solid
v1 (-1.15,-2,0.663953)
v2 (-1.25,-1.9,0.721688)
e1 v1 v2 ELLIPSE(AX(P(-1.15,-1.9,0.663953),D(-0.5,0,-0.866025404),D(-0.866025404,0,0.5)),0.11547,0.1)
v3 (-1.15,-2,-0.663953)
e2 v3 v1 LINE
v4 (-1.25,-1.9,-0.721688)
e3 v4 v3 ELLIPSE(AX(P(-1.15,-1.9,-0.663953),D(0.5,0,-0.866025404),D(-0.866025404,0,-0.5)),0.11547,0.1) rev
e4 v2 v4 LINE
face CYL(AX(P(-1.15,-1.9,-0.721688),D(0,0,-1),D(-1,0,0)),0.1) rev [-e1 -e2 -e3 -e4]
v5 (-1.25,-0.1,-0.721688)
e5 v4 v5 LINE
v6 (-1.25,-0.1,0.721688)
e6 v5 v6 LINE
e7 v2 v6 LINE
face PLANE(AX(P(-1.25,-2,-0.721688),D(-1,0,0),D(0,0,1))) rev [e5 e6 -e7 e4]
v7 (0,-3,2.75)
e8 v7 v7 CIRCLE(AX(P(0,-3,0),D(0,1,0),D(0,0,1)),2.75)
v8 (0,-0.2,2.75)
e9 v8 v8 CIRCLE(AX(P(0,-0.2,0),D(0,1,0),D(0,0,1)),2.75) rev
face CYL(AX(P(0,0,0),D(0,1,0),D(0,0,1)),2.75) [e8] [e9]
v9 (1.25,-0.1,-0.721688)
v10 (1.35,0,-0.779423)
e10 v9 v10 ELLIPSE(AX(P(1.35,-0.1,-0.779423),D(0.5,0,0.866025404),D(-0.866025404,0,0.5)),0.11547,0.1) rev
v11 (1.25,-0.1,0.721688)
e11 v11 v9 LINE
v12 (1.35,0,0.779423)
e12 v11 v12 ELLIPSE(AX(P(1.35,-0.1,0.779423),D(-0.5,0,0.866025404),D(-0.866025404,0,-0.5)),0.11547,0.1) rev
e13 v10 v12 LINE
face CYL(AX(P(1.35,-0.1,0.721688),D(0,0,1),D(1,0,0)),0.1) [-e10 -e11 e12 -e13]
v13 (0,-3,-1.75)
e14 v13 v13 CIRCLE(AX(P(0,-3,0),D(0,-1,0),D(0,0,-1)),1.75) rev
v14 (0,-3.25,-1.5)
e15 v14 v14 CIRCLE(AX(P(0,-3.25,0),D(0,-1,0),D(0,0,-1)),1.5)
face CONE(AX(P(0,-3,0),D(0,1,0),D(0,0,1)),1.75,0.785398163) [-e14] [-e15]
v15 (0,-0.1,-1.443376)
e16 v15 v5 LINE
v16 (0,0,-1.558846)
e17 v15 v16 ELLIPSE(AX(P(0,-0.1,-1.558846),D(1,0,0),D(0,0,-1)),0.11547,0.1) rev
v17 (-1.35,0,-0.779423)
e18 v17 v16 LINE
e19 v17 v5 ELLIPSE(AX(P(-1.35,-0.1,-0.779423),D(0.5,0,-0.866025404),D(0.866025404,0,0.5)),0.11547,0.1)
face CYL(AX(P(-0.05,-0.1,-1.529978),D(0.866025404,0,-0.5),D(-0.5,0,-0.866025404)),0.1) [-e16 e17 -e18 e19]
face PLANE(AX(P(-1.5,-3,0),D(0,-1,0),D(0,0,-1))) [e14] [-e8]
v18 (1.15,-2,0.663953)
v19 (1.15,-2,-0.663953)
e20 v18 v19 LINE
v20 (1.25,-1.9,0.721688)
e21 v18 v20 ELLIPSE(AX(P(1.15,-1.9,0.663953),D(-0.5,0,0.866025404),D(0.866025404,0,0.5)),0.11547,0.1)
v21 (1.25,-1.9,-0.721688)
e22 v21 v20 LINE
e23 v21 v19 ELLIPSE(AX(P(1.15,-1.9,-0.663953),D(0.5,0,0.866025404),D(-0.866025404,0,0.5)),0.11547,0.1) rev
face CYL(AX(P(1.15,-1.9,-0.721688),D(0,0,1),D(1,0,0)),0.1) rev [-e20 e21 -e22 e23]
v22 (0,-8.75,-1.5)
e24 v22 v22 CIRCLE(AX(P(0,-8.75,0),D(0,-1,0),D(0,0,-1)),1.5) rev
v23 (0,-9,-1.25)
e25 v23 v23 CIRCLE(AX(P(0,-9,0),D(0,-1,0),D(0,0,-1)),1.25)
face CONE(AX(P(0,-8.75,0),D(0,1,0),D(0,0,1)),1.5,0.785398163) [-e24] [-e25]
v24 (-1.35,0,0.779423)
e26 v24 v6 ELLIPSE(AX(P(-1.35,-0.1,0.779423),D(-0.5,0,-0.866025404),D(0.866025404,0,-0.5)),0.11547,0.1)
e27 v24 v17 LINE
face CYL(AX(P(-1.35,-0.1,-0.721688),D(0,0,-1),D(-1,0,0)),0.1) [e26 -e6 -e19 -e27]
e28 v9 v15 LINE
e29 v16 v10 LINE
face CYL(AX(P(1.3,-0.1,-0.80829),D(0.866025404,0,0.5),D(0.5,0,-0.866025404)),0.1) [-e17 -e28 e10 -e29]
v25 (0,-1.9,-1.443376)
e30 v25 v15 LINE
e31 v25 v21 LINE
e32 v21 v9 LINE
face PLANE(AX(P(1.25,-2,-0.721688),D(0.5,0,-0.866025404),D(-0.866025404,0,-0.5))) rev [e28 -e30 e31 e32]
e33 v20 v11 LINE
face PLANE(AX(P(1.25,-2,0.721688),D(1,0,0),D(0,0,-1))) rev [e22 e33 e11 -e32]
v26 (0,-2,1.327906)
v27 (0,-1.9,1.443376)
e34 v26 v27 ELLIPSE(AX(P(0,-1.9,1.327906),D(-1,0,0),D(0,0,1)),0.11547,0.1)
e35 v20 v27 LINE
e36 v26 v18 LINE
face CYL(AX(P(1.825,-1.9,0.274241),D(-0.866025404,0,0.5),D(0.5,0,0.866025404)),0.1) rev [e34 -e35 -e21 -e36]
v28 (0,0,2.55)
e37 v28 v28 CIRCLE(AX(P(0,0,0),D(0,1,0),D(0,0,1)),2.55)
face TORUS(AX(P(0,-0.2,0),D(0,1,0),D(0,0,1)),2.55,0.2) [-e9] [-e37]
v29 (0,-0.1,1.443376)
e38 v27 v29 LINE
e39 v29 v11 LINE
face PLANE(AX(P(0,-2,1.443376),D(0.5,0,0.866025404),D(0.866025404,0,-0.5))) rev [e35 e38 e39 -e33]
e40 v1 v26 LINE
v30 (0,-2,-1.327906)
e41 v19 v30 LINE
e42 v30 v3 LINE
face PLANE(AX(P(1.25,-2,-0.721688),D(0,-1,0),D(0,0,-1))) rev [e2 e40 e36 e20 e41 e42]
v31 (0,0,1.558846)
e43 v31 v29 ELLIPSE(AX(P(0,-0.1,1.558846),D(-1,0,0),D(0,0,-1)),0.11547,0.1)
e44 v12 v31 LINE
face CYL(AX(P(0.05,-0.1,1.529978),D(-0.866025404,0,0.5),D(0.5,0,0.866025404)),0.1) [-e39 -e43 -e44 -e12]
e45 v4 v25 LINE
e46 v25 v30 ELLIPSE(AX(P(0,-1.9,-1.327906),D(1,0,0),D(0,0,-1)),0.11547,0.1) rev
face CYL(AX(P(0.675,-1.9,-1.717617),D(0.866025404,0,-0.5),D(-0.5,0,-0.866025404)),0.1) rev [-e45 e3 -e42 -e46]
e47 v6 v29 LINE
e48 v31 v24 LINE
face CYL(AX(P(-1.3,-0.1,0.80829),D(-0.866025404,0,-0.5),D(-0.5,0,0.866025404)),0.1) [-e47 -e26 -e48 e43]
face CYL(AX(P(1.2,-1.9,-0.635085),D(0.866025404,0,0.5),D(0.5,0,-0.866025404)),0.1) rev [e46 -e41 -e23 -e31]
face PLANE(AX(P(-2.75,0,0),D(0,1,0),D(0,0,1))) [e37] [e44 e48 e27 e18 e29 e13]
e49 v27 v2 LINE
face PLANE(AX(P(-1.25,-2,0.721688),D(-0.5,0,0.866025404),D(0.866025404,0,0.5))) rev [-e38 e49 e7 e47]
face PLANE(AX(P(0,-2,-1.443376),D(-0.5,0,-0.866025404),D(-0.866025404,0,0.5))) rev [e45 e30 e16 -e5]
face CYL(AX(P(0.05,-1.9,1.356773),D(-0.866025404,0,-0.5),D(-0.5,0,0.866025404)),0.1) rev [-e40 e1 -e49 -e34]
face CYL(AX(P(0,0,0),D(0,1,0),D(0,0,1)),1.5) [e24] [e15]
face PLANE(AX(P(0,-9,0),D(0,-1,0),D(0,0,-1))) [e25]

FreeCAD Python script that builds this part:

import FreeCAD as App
import Part
import Sketcher
from FreeCAD import Vector
Q = App.Units.Quantity


def edges_at(feature, points):
    """Names of the edges that pass closest to the given points."""
    edges = feature.Shape.Edges
    near = lambda p: min(range(len(edges)), key=lambda i: edges[i].distToShape(Part.Vertex(*p))[0])
    return sorted({f"Edge{near(p) + 1}" for p in points})


def add_polygon(sketch, points):
    """Adds a closed chain of lines whose ends are joined by coincident constraints."""
    first, n = sketch.GeometryCount, len(points)
    for a, b in zip(points, points[1:] + points[:1]):
        sketch.addGeometry(Part.LineSegment(App.Vector(*a, 0), App.Vector(*b, 0)), False)
    for i in range(n):
        sketch.addConstraint(Sketcher.Constraint("Coincident", first + i, 2, first + (i + 1) % n, 1))

doc = App.newDocument("Part")
body = doc.addObject("PartDesign::Body", "Body")

# Sketch on XY plane
sketch1 = body.newObject("Sketcher::SketchObject", "Sketch")
sketch1.AttachmentSupport = (doc.getObject("XY_Plane"), [""])
sketch1.MapMode = "FlatFace"
add_polygon(sketch1, [(-1.5, -9), (0, -9), (0, 0), (-2.8, 0), (-2.8, -3), (-1.5, -3)])  # lines 0-5
sketch1.addConstraint([
    Sketcher.Constraint("Horizontal", 0),
    Sketcher.Constraint("Vertical", 1),
    Sketcher.Constraint("Horizontal", 2),
    Sketcher.Constraint("Vertical", 3),
    Sketcher.Constraint("Horizontal", 4),
    Sketcher.Constraint("Vertical", 5),
    Sketcher.Constraint("Coincident", 1, 2, -1, 1),
    Sketcher.Constraint("DistanceY", 1, 1, 1, 2, Q("9 mm")),
    Sketcher.Constraint("DistanceY", 3, 2, 3, 1, Q("3 mm")),
    Sketcher.Constraint("DistanceX", 0, 1, 0, 2, Q("1.5 mm")),
    Sketcher.Constraint("DistanceX", 2, 2, 2, 1, Q("2.75 mm")),
])
revolution = body.newObject("PartDesign::Revolution", "Revolution")
revolution.Profile = sketch1
revolution.ReferenceAxis = (sketch1, ["V_Axis"])
revolution.Angle = 360
doc.recompute()

chamfer = body.newObject("PartDesign::Chamfer", "Chamfer")
chamfer.Base = (revolution, edges_at(revolution, [(1.5, -3, 0), (1.5, -9, 0)]))
chamfer.Size = 0.25
doc.recompute()

fillet = body.newObject("PartDesign::Fillet", "Fillet")
fillet.Base = (chamfer, edges_at(chamfer, [(2.75, 0, 0)]))
fillet.Radius = 0.2

# Sketch on XZ plane
sketch2 = body.newObject("Sketcher::SketchObject", "Sketch001")
sketch2.AttachmentSupport = (doc.getObject("XZ_Plane"), [""])
sketch2.MapMode = "FlatFace"
add_polygon(sketch2, [(0, -1.4), (-1.2, -0.7), (-1.2, 0.7), (0, 1.4), (1.2, 0.7), (1.2, -0.7)])  # lines 0-5
sketch2.addConstraint([
    Sketcher.Constraint("Vertical", 1),
    Sketcher.Constraint("Vertical", 4),
    Sketcher.Constraint("Symmetric", 0, 2, 3, 2, -1, 1),
    Sketcher.Constraint("Symmetric", 2, 2, 5, 2, -1, 1),
    Sketcher.Constraint("PointOnObject", 2, 2, -2),
    Sketcher.Constraint("Parallel", 2, 5),
    Sketcher.Constraint("Horizontal", 1, 2, 3, 2),
    Sketcher.Constraint("Angle", 0, Q("150 deg")),
    Sketcher.Constraint("DistanceX", 1, 2, 3, 2, Q("2.5 mm")),
    Sketcher.Constraint("DistanceY", 1, 1, 1, 2, Q("1.443376 mm")),
])
pocket1 = body.newObject("PartDesign::Pocket", "Pocket")
pocket1.Profile = sketch2
pocket1.Length = 2
pocket1.Reversed = True
doc.recompute()

fillet2 = body.newObject("PartDesign::Fillet", "Fillet001")
fillet2.Base = (pocket1, edges_at(pocket1, [
    (0.625, -2, -1.083),
    (1.25, -2, 0),
    (0.625, -2, 1.083),
    (-0.625, -2, 1.083),
    (-1.25, -2, 0),
    (-0.625, -2, -1.083),
    (0.625, 0, -1.083),
    (-0.625, 0, -1.083),
    (-1.25, 0, 0),
    (-0.625, 0, 1.083),
    (0.625, 0, 1.083),
    (1.25, 0, 0),
]))
fillet2.Radius = 0.1

doc.recompute()
